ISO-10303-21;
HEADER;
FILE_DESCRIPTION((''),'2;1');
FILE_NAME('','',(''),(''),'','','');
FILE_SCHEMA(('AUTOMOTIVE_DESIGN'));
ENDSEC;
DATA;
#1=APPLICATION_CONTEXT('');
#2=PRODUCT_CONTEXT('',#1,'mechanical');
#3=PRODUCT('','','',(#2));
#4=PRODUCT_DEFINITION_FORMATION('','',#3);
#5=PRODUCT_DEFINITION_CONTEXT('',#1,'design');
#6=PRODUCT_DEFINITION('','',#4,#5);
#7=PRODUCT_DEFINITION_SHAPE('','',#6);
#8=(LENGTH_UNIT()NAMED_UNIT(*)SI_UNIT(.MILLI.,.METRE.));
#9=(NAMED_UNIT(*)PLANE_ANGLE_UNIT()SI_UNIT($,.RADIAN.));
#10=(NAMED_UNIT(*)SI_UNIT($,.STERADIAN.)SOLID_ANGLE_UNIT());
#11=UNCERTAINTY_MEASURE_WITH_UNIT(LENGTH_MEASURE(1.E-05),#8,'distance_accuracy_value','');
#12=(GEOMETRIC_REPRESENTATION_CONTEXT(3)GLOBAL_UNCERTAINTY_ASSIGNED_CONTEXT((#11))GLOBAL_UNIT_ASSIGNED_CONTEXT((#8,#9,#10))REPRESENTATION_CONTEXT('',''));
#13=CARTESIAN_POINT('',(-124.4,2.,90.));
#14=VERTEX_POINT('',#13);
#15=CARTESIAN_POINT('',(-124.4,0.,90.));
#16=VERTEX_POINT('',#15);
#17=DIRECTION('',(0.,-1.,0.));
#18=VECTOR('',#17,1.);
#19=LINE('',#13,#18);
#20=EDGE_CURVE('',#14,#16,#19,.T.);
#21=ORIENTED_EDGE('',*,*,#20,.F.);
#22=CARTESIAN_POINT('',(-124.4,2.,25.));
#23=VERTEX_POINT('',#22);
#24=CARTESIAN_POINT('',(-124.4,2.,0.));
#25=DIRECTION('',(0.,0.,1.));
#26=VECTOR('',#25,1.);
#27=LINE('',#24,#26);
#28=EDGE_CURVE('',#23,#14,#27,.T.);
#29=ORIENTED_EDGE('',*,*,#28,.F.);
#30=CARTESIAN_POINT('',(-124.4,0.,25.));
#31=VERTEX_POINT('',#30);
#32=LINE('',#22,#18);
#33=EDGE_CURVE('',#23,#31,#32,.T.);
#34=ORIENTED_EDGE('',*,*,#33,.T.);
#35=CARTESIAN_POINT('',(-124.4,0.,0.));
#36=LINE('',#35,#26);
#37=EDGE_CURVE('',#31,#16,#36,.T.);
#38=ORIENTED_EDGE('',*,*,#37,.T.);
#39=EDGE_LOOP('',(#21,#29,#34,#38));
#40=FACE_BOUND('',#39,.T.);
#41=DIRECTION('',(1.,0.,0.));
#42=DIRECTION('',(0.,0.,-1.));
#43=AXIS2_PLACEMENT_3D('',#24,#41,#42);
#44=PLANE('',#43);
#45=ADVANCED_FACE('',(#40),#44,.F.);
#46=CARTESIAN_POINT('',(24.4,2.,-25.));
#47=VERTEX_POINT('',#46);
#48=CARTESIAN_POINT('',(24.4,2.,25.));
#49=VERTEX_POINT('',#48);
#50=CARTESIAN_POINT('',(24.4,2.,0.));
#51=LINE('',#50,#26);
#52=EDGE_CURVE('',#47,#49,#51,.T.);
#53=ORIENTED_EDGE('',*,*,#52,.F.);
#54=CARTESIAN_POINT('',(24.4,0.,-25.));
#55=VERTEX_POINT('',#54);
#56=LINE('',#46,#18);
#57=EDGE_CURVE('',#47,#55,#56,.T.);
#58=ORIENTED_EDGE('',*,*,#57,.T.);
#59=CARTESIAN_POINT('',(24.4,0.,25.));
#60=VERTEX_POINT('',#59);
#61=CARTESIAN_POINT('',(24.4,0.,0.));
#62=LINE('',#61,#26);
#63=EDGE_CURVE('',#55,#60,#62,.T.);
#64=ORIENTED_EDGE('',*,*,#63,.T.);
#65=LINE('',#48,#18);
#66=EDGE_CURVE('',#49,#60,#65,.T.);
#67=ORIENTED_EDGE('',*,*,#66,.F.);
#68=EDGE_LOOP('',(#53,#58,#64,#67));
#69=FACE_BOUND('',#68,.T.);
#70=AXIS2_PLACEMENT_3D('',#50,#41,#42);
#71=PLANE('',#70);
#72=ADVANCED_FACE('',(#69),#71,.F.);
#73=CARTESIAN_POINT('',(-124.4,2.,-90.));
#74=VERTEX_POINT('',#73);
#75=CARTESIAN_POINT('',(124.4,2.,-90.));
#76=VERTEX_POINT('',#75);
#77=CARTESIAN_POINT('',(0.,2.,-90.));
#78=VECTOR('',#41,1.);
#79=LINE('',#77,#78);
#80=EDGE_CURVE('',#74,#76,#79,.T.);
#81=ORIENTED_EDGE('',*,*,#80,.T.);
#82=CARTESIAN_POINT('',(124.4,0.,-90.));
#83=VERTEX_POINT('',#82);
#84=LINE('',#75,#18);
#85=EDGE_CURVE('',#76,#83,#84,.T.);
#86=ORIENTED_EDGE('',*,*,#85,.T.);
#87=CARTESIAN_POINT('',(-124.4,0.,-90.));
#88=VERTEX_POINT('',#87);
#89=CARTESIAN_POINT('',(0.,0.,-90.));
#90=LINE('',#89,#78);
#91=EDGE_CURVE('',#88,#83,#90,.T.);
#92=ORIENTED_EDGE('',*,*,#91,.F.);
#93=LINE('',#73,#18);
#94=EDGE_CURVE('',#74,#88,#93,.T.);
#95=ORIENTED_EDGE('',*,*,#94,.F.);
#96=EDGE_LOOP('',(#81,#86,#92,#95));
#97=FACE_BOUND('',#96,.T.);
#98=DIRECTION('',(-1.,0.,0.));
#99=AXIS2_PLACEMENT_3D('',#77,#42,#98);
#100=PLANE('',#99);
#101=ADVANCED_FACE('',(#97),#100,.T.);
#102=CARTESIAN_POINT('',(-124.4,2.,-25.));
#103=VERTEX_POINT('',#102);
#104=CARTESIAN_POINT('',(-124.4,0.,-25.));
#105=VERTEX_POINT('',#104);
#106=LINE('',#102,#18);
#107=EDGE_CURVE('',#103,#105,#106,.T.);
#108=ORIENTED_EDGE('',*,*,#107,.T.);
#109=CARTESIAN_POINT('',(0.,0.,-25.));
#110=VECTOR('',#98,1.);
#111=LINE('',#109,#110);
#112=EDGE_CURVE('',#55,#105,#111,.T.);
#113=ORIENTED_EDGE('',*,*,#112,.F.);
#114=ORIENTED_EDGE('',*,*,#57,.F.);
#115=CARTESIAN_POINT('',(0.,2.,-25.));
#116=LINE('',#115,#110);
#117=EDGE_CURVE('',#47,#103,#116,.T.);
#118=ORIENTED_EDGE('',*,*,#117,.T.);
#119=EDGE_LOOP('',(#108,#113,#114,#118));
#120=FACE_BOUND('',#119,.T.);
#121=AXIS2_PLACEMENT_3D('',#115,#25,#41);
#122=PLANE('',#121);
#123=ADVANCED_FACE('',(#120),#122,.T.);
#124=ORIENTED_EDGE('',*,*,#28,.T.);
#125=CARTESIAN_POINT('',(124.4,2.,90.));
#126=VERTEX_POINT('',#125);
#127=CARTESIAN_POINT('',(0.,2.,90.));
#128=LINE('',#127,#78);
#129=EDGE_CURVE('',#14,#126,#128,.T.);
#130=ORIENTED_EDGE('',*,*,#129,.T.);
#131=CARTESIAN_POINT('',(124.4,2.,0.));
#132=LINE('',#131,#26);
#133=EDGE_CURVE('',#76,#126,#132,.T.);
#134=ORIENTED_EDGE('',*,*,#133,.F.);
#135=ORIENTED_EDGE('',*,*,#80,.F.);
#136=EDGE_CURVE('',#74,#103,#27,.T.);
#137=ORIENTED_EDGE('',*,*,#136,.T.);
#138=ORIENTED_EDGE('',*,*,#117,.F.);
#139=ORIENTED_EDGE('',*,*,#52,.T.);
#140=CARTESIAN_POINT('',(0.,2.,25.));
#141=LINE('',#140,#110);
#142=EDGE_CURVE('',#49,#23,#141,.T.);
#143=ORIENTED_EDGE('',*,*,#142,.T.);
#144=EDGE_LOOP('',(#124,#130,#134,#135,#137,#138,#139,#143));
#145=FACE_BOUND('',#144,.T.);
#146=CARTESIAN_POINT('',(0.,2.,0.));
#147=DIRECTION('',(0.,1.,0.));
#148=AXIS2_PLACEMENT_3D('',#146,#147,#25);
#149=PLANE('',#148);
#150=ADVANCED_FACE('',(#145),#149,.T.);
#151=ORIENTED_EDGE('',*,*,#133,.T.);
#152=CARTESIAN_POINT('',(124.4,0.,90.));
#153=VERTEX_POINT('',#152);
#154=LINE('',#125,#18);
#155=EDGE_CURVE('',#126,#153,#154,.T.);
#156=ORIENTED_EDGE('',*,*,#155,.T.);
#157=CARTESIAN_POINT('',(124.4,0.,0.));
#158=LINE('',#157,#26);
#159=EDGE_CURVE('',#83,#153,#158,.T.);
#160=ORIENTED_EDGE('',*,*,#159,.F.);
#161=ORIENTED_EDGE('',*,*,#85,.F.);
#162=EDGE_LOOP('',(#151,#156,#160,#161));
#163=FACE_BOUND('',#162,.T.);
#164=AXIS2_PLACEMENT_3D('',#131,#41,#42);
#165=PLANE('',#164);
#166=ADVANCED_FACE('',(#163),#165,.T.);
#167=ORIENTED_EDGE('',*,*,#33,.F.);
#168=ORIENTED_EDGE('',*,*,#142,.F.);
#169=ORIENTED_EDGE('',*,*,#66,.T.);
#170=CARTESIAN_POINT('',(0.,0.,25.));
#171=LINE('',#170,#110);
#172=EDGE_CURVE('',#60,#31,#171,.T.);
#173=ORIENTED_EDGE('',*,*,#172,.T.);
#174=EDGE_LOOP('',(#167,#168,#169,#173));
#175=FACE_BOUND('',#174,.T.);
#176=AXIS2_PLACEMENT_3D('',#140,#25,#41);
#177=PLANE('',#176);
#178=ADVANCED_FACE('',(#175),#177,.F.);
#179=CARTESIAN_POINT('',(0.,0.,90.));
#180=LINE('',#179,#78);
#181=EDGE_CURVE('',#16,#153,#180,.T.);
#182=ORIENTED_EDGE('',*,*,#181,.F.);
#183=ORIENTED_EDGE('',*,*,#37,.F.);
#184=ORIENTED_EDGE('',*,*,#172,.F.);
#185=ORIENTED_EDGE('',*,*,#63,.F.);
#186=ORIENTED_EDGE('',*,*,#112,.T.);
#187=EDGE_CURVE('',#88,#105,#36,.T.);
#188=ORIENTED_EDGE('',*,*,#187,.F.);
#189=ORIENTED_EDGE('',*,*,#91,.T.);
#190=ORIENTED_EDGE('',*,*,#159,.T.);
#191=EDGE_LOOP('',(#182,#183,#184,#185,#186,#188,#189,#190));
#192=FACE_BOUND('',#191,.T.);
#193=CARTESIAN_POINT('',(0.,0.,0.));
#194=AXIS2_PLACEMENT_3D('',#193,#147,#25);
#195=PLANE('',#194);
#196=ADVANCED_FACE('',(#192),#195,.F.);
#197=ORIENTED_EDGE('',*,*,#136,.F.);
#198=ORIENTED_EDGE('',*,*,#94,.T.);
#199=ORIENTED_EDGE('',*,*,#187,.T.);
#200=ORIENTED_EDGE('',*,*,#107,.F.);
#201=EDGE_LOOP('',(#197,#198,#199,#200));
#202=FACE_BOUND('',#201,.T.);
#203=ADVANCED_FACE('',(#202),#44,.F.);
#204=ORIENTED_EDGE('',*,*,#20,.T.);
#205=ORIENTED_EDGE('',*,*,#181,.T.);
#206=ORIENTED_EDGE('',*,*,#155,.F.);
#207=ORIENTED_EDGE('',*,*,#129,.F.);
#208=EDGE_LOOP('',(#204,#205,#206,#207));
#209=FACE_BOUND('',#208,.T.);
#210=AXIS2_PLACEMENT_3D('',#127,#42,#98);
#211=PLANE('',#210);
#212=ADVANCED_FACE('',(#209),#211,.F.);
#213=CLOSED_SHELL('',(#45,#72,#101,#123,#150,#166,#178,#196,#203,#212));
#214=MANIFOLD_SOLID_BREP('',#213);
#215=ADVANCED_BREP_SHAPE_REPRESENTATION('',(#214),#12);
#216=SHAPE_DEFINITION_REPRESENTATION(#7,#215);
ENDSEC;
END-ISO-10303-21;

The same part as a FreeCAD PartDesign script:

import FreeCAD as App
import Part
import Sketcher
from FreeCAD import Vector
Q = App.Units.Quantity

doc = App.newDocument("Part")
params = doc.addObject("Spreadsheet::Sheet", "Params")
for row, (alias, value) in enumerate([
    ("sketch1_height", "65 mm"),
    ("sketch1_height2", "50 mm"),
    ("sketch1_width", "248.8 mm"),
    ("sketch1_width2", "148.8 mm"),
    ("pad1_length", "2 mm"),
], start=1):
    params.set(f"A{row}", alias)
    params.set(f"B{row}", "=" + value)
    params.setAlias(f"B{row}", alias)

body = doc.addObject("PartDesign::Body", "Body")

sketch1 = doc.addObject("Sketcher::SketchObject", "Sketch")
body.addObject(sketch1)
sketch1.AttachmentSupport = (doc.XZ_Plane, [""])
sketch1.MapMode = "FlatFace"
sketch1.addGeometry([
    Part.LineSegment(Vector(124.4, -90, 0), Vector(-124.4, -90, 0)),
    Part.LineSegment(Vector(-124.4, -90, 0), Vector(-124.4, -25, 0)),
    Part.LineSegment(Vector(-124.4, -25, 0), Vector(24.4, -25, 0)),
    Part.LineSegment(Vector(24.4, -25, 0), Vector(24.4, 25, 0)),
    Part.LineSegment(Vector(24.4, 25, 0), Vector(-124.4, 25, 0)),
    Part.LineSegment(Vector(-124.4, 25, 0), Vector(-124.4, 90, 0)),
    Part.LineSegment(Vector(-124.4, 90, 0), Vector(124.4, 90, 0)),
    Part.LineSegment(Vector(124.4, 90, 0), Vector(124.4, -90, 0)),
], False)
sketch1.addConstraint([
    Sketcher.Constraint("Coincident", 0, 2, 1, 1),
    Sketcher.Constraint("Coincident", 1, 2, 2, 1),
    Sketcher.Constraint("Coincident", 2, 2, 3, 1),
    Sketcher.Constraint("Coincident", 3, 2, 4, 1),
    Sketcher.Constraint("Coincident", 4, 2, 5, 1),
    Sketcher.Constraint("Coincident", 5, 2, 6, 1),
    Sketcher.Constraint("Coincident", 6, 2, 7, 1),
    Sketcher.Constraint("Coincident", 7, 2, 0, 1),
    Sketcher.Constraint("Horizontal", 0),
    Sketcher.Constraint("Vertical", 1),
    Sketcher.Constraint("Horizontal", 2),
    Sketcher.Constraint("Vertical", 3),
    Sketcher.Constraint("Horizontal", 4),
    Sketcher.Constraint("Vertical", 5),
    Sketcher.Constraint("Horizontal", 6),
    Sketcher.Constraint("Vertical", 7),
    Sketcher.Constraint("Symmetric", 0, 2, 6, 2, -1, 1),
    Sketcher.Constraint("Symmetric", 1, 2, 4, 2, -1),
    Sketcher.Constraint("DistanceY", 1, 1, 1, 2, Q("65 mm")),
    Sketcher.Constraint("DistanceY", 3, 1, 3, 2, Q("50 mm")),
    Sketcher.Constraint("DistanceX", 0, 2, 0, 1, Q("248.8 mm")),
    Sketcher.Constraint("DistanceX", 2, 1, 2, 2, Q("148.8 mm")),
])
sketch1.setExpression("Constraints[18]", "Params.sketch1_height")
sketch1.setExpression("Constraints[19]", "Params.sketch1_height2")
sketch1.setExpression("Constraints[20]", "Params.sketch1_width")
sketch1.setExpression("Constraints[21]", "Params.sketch1_width2")
pad1 = doc.addObject("PartDesign::Pad", "Pad")
body.addObject(pad1)
pad1.Profile = sketch1
pad1.setExpression("Length", "Params.pad1_length")
pad1.Reversed = True

doc.recompute()
